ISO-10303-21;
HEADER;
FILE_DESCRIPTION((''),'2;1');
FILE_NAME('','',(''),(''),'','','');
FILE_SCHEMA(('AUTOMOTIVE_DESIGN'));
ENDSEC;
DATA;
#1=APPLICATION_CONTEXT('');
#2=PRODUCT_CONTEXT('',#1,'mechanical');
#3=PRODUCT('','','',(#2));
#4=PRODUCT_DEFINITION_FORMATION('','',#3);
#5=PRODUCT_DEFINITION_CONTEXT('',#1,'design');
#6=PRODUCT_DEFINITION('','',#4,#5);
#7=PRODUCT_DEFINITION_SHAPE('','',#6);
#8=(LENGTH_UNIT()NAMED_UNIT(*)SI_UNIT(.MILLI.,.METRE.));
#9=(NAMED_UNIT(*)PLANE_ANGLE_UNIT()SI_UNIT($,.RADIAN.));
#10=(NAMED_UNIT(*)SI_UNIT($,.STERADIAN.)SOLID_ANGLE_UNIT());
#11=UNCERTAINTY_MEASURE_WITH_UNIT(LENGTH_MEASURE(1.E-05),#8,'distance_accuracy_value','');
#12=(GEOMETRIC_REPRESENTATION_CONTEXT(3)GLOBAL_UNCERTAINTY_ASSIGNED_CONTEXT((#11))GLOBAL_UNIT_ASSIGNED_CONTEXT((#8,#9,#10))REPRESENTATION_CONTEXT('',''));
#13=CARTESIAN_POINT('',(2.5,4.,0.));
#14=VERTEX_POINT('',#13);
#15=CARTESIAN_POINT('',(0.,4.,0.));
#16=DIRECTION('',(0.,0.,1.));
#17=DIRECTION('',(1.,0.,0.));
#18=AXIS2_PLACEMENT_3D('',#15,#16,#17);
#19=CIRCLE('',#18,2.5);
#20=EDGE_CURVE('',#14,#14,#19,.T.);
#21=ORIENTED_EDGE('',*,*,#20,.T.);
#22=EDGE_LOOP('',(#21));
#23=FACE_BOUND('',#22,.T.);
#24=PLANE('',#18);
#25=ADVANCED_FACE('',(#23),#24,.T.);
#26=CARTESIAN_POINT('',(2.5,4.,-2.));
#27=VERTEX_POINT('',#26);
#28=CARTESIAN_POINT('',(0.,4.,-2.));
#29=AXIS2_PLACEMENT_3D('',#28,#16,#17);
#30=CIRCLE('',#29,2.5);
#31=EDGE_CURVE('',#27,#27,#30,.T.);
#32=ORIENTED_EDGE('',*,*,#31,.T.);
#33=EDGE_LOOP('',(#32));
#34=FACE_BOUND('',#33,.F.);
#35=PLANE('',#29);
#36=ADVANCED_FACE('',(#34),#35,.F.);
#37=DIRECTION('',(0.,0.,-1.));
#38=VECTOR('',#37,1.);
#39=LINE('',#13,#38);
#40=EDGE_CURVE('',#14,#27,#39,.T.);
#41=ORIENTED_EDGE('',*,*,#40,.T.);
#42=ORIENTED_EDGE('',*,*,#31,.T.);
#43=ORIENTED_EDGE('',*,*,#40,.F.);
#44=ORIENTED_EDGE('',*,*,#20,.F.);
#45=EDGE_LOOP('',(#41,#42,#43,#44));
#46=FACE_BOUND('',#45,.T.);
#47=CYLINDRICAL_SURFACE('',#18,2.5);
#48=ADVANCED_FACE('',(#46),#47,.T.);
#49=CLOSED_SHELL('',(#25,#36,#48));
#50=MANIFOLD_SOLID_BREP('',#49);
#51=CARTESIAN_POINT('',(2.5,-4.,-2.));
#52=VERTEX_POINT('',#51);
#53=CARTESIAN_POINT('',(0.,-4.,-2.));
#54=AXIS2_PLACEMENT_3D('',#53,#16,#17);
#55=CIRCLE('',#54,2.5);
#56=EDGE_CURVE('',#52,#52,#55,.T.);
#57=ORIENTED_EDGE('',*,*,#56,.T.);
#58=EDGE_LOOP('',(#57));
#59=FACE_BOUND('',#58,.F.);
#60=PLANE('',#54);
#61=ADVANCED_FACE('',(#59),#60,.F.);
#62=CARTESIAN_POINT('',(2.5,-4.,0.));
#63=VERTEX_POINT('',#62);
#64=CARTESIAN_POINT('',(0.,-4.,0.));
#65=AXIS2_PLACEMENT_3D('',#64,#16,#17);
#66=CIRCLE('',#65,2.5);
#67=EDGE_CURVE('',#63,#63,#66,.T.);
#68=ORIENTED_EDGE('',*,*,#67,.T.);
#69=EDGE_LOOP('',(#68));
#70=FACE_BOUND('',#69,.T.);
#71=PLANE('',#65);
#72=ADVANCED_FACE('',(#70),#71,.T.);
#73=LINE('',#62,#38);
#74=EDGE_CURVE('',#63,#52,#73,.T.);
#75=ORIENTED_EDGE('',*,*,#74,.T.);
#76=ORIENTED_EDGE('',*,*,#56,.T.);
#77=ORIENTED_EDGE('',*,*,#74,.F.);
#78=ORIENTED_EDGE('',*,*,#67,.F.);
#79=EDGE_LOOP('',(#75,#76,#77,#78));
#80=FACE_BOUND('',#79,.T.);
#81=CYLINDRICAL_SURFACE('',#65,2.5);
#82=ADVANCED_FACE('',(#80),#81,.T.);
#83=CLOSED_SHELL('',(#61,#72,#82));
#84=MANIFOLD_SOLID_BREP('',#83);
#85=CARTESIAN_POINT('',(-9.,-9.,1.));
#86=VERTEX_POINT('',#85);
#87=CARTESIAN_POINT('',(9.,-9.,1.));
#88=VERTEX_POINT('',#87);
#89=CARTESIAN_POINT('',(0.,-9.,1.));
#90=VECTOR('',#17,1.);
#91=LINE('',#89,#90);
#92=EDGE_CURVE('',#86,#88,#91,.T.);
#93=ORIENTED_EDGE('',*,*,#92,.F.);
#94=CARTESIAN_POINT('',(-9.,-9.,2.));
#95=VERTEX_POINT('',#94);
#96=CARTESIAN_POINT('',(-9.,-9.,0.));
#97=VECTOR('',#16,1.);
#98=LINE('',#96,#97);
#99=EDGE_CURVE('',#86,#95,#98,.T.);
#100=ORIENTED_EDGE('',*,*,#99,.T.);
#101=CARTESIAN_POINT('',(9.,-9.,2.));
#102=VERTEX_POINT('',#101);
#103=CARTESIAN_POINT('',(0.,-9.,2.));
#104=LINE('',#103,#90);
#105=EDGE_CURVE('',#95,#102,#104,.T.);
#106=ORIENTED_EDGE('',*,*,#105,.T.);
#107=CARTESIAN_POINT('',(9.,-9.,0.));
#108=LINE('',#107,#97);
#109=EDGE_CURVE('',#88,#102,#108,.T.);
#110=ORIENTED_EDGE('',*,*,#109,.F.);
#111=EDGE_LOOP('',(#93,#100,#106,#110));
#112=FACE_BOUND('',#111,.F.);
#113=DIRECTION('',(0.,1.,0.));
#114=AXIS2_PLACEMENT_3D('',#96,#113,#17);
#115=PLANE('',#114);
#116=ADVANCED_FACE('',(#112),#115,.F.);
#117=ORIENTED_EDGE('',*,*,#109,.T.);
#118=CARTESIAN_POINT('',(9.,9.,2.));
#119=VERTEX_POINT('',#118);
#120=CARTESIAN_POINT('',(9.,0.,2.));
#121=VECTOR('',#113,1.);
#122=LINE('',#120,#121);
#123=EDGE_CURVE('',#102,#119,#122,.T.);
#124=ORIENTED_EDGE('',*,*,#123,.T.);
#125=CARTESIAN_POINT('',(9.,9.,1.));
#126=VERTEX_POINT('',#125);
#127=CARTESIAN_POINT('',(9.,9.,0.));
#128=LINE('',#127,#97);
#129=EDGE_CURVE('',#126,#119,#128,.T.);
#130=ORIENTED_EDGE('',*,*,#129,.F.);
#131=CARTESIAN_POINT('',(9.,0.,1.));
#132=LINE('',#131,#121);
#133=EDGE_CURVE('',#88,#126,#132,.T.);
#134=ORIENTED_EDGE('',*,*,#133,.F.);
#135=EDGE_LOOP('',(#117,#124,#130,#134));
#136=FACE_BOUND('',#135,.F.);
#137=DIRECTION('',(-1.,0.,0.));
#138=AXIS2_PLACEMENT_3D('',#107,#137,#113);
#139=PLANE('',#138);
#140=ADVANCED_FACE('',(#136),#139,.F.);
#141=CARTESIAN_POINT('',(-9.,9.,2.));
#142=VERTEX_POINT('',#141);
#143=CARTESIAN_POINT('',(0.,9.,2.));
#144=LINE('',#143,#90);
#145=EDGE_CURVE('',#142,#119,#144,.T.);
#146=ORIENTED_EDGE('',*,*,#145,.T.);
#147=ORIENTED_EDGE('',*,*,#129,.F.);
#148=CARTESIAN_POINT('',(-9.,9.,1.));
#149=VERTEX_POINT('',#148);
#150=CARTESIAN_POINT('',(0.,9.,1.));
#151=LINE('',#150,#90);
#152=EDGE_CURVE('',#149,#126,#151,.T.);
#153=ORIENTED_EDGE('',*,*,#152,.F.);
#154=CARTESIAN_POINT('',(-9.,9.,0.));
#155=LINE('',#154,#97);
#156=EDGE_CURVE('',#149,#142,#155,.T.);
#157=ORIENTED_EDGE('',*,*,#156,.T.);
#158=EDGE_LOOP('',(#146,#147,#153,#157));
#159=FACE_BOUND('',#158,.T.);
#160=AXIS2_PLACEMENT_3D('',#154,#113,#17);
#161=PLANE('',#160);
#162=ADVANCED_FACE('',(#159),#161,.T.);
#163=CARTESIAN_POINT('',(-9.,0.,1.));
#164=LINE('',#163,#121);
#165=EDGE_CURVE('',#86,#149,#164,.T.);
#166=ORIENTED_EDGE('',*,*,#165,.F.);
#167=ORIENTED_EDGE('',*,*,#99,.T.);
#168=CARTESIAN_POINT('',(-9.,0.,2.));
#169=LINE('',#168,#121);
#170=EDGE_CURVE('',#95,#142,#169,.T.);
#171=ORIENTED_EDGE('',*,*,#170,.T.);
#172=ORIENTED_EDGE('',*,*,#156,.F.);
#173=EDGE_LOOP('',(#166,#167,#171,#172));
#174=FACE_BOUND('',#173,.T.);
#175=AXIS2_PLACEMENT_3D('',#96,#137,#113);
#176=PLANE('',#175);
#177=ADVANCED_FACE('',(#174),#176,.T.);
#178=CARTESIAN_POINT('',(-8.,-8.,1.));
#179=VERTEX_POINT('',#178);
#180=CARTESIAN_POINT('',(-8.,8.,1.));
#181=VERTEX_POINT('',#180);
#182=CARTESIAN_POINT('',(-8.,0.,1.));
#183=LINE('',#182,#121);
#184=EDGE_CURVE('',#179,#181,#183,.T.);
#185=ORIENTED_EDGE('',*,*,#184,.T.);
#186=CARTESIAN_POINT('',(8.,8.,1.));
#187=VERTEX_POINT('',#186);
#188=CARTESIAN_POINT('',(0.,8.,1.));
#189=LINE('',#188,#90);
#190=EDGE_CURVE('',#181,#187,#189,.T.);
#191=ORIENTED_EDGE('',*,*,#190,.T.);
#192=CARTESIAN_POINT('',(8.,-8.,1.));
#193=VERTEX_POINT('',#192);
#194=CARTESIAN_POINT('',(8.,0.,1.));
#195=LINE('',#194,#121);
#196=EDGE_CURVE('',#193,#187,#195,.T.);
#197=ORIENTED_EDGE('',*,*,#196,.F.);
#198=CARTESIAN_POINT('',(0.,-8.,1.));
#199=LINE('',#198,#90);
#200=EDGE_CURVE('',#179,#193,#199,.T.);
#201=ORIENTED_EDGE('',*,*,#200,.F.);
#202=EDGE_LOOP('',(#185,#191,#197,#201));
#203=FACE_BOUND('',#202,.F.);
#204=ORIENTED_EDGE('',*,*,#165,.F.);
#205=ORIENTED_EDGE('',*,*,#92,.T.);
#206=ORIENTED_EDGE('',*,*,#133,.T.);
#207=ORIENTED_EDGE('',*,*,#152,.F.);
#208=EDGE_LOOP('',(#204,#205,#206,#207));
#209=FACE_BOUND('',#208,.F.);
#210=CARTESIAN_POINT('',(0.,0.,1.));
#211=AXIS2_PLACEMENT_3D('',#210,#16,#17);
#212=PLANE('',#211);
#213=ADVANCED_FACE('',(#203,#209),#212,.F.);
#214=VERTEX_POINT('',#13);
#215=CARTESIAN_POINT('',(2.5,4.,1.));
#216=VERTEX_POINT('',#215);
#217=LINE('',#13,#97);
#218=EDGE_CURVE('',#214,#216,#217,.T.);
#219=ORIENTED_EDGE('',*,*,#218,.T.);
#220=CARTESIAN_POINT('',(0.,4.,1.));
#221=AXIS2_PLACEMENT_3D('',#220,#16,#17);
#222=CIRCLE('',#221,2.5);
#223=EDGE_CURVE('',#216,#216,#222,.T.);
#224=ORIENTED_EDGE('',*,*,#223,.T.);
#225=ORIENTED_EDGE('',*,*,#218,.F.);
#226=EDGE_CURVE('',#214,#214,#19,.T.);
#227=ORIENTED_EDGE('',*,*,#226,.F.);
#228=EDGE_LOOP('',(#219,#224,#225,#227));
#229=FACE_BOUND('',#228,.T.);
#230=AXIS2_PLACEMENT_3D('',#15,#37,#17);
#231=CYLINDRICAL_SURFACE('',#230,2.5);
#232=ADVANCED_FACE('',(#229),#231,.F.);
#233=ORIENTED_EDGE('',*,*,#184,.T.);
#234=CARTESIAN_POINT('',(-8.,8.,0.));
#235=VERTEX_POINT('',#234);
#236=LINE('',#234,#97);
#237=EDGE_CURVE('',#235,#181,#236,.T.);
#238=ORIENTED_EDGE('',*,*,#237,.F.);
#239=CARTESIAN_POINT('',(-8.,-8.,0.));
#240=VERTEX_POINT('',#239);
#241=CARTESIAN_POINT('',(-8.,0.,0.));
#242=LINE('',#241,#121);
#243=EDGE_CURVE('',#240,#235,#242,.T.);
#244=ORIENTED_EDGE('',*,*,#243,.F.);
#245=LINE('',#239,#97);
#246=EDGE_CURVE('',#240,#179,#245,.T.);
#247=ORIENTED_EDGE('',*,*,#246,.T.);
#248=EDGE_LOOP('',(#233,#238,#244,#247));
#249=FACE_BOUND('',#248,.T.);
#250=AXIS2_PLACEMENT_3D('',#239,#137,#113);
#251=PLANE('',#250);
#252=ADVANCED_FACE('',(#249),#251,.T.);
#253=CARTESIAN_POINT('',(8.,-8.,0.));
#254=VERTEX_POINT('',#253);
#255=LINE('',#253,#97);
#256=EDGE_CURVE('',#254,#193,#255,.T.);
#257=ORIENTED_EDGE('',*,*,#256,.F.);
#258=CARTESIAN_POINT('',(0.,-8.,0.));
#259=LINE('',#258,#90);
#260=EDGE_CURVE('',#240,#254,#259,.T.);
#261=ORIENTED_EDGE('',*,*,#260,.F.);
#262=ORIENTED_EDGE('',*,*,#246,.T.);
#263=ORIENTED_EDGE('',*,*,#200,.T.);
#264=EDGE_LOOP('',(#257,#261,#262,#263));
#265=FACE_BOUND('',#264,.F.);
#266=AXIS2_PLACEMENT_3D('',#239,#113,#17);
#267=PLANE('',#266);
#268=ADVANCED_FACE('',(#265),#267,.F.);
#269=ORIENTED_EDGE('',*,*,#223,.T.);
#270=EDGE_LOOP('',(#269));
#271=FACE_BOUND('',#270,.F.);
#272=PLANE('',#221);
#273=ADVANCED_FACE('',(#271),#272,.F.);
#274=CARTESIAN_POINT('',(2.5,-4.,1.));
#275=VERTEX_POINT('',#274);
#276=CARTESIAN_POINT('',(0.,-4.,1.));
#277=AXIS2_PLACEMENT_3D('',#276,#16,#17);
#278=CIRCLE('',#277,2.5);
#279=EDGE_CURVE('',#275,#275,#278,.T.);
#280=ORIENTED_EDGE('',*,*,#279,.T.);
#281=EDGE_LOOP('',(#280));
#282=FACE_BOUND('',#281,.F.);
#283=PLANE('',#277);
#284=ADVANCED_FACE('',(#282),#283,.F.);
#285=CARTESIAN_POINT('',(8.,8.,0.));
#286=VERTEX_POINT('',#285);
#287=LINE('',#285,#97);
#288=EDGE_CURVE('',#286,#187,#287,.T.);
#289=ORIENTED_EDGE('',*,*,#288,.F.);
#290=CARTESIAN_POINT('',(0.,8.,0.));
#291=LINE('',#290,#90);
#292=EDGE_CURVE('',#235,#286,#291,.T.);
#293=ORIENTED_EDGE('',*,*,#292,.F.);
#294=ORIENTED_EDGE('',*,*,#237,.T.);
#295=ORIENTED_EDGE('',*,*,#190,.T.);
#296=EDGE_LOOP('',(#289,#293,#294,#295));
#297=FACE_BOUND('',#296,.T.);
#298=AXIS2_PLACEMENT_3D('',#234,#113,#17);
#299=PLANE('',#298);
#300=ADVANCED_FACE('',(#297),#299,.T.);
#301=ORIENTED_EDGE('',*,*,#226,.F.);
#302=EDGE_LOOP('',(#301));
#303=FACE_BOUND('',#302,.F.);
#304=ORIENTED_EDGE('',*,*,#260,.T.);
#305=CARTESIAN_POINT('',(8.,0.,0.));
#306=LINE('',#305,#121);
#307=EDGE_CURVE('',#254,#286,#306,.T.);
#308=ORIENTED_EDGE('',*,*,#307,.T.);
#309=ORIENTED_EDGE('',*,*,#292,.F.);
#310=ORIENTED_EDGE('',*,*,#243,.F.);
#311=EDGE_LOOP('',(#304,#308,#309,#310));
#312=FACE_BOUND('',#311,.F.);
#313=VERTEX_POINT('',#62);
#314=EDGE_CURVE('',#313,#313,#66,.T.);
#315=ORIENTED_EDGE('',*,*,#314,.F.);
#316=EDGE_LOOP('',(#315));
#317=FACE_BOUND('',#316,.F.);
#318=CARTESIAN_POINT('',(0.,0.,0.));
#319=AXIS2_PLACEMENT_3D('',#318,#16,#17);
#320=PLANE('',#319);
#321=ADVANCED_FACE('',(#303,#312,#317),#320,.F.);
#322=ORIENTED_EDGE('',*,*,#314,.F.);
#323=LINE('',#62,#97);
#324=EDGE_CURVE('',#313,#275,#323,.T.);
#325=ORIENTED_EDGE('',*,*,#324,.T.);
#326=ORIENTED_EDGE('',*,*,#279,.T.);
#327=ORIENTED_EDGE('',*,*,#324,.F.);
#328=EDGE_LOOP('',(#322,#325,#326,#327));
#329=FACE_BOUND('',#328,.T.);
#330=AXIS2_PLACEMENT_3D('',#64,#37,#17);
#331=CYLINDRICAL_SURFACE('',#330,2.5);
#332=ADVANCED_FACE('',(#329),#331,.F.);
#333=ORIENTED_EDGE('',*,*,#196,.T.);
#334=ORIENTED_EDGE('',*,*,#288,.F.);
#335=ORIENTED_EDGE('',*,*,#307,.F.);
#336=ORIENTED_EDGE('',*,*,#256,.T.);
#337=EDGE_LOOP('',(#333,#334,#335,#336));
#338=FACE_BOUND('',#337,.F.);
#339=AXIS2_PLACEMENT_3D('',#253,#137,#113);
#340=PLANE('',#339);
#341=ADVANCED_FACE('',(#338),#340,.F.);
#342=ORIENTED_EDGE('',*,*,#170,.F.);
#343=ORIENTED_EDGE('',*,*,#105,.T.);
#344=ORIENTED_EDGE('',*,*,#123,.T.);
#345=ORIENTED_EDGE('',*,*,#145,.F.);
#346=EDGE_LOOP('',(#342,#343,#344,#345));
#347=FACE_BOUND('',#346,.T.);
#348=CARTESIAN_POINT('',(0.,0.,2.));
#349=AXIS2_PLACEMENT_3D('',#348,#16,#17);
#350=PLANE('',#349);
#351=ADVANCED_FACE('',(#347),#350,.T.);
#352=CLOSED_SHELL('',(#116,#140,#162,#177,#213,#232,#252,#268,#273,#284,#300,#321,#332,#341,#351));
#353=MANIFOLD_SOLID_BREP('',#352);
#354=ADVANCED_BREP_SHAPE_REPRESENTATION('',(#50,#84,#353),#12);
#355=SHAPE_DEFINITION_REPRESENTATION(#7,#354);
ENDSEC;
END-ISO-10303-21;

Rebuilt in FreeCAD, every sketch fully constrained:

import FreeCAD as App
import Part
import Sketcher

V = App.Vector


def add_polygon(sketch, points):
    """Adds a closed chain of lines whose ends are joined by coincident constraints."""
    first, n = sketch.GeometryCount, len(points)
    for a, b in zip(points, points[1:] + points[:1]):
        sketch.addGeometry(Part.LineSegment(App.Vector(*a, 0), App.Vector(*b, 0)), False)
    for i in range(n):
        sketch.addConstraint(Sketcher.Constraint("Coincident", first + i, 2, first + (i + 1) % n, 1))

doc = App.newDocument("Part")
body = doc.addObject("PartDesign::Body", "Body")

sketch1 = body.newObject("Sketcher::SketchObject", "Sketch")
sketch1.AttachmentSupport = (doc.getObject("XY_Plane"), [""])
sketch1.MapMode = "FlatFace"
add_polygon(sketch1, [(-9, 9), (-9, -9), (9, -9), (9, 9)])
sketch1.addConstraint([
    Sketcher.Constraint("Vertical", 0),
    Sketcher.Constraint("Horizontal", 1),
    Sketcher.Constraint("Vertical", 2),
    Sketcher.Constraint("Horizontal", 3),
    Sketcher.Constraint("Symmetric", 0, 2, 2, 2, -1, 1),
    Sketcher.Constraint("Equal", 3, 0),
    Sketcher.Constraint("DistanceX", 1, 1, 1, 2, 18.0),
])
pad1 = body.newObject("PartDesign::Pad", "Pad")
pad1.Profile = sketch1
pad1.Length = 2

sketch2 = body.newObject("Sketcher::SketchObject", "Sketch001")
sketch2.AttachmentSupport = (doc.getObject("XY_Plane"), [""])
sketch2.MapMode = "FlatFace"
add_polygon(sketch2, [(-9, 9), (-9, -9), (9, -9), (9, 9)])
add_polygon(sketch2, [(8, -8), (-8, -8), (-8, 8), (8, 8)])
sketch2.addConstraint([
    Sketcher.Constraint("Vertical", 0),
    Sketcher.Constraint("Horizontal", 1),
    Sketcher.Constraint("Vertical", 2),
    Sketcher.Constraint("Horizontal", 3),
    Sketcher.Constraint("Horizontal", 4),
    Sketcher.Constraint("Vertical", 5),
    Sketcher.Constraint("Horizontal", 6),
    Sketcher.Constraint("Vertical", 7),
    Sketcher.Constraint("Symmetric", 0, 2, 2, 2, -1, 1),
    Sketcher.Constraint("Symmetric", 4, 2, 6, 2, -1, 1),
    Sketcher.Constraint("Equal", 3, 0),
    Sketcher.Constraint("Equal", 6, 5),
    Sketcher.Constraint("DistanceX", 1, 1, 1, 2, 18.0),
    Sketcher.Constraint("DistanceX", 4, 2, 4, 1, 16.0),
])
pocket1 = body.newObject("PartDesign::Pocket", "Pocket")
pocket1.Profile = sketch2
pocket1.Length = 1
pocket1.Reversed = True

sketch3 = body.newObject("Sketcher::SketchObject", "Sketch002")
sketch3.AttachmentSupport = (doc.getObject("XY_Plane"), [""])
sketch3.MapMode = "FlatFace"
sketch3.addGeometry([
    Part.Circle(V(0, -4, 0), V(0, 0, 1), 2.5),
    Part.Circle(V(0, 4, 0), V(0, 0, 1), 2.5),
], False)
sketch3.addConstraint([
    Sketcher.Constraint("Equal", 0, 1),
    Sketcher.Constraint("Symmetric", 0, 3, 1, 3, -1, 1),
    Sketcher.Constraint("PointOnObject", 0, 3, -2),
    Sketcher.Constraint("Diameter", 0, 5.0),
    Sketcher.Constraint("DistanceY", 0, 3, -1, 1, 4.0),
])
pocket2 = body.newObject("PartDesign::Pocket", "Pocket001")
pocket2.Profile = sketch3
pocket2.Length = 1
pocket2.Reversed = True
body2 = doc.addObject("PartDesign::Body", "Body001")

sketch4 = body2.newObject("Sketcher::SketchObject", "Sketch003")
sketch4.AttachmentSupport = (doc.getObject("XY_Plane001"), [""])
sketch4.MapMode = "FlatFace"
sketch4.addGeometry(Part.Circle(V(0, -4, 0), V(0, 0, 1), 2.5), False)
sketch4.addConstraint([
    Sketcher.Constraint("PointOnObject", 0, 3, -2),
    Sketcher.Constraint("Diameter", 0, 5.0),
    Sketcher.Constraint("DistanceY", 0, 3, -1, 1, 4.0),
])
pad2 = body2.newObject("PartDesign::Pad", "Pad001")
pad2.Profile = sketch4
pad2.Length = 2
pad2.Reversed = True
body3 = doc.addObject("PartDesign::Body", "Body002")

sketch5 = body3.newObject("Sketcher::SketchObject", "Sketch004")
sketch5.AttachmentSupport = (doc.getObject("XY_Plane002"), [""])
sketch5.MapMode = "FlatFace"
sketch5.addGeometry(Part.Circle(V(0, 4, 0), V(0, 0, 1), 2.5), False)
sketch5.addConstraint([
    Sketcher.Constraint("PointOnObject", 0, 3, -2),
    Sketcher.Constraint("Diameter", 0, 5.0),
    Sketcher.Constraint("DistanceY", -1, 1, 0, 3, 4.0),
])
pad3 = body3.newObject("PartDesign::Pad", "Pad002")
pad3.Profile = sketch5
pad3.Length = 2
pad3.Reversed = True

doc.recompute()
